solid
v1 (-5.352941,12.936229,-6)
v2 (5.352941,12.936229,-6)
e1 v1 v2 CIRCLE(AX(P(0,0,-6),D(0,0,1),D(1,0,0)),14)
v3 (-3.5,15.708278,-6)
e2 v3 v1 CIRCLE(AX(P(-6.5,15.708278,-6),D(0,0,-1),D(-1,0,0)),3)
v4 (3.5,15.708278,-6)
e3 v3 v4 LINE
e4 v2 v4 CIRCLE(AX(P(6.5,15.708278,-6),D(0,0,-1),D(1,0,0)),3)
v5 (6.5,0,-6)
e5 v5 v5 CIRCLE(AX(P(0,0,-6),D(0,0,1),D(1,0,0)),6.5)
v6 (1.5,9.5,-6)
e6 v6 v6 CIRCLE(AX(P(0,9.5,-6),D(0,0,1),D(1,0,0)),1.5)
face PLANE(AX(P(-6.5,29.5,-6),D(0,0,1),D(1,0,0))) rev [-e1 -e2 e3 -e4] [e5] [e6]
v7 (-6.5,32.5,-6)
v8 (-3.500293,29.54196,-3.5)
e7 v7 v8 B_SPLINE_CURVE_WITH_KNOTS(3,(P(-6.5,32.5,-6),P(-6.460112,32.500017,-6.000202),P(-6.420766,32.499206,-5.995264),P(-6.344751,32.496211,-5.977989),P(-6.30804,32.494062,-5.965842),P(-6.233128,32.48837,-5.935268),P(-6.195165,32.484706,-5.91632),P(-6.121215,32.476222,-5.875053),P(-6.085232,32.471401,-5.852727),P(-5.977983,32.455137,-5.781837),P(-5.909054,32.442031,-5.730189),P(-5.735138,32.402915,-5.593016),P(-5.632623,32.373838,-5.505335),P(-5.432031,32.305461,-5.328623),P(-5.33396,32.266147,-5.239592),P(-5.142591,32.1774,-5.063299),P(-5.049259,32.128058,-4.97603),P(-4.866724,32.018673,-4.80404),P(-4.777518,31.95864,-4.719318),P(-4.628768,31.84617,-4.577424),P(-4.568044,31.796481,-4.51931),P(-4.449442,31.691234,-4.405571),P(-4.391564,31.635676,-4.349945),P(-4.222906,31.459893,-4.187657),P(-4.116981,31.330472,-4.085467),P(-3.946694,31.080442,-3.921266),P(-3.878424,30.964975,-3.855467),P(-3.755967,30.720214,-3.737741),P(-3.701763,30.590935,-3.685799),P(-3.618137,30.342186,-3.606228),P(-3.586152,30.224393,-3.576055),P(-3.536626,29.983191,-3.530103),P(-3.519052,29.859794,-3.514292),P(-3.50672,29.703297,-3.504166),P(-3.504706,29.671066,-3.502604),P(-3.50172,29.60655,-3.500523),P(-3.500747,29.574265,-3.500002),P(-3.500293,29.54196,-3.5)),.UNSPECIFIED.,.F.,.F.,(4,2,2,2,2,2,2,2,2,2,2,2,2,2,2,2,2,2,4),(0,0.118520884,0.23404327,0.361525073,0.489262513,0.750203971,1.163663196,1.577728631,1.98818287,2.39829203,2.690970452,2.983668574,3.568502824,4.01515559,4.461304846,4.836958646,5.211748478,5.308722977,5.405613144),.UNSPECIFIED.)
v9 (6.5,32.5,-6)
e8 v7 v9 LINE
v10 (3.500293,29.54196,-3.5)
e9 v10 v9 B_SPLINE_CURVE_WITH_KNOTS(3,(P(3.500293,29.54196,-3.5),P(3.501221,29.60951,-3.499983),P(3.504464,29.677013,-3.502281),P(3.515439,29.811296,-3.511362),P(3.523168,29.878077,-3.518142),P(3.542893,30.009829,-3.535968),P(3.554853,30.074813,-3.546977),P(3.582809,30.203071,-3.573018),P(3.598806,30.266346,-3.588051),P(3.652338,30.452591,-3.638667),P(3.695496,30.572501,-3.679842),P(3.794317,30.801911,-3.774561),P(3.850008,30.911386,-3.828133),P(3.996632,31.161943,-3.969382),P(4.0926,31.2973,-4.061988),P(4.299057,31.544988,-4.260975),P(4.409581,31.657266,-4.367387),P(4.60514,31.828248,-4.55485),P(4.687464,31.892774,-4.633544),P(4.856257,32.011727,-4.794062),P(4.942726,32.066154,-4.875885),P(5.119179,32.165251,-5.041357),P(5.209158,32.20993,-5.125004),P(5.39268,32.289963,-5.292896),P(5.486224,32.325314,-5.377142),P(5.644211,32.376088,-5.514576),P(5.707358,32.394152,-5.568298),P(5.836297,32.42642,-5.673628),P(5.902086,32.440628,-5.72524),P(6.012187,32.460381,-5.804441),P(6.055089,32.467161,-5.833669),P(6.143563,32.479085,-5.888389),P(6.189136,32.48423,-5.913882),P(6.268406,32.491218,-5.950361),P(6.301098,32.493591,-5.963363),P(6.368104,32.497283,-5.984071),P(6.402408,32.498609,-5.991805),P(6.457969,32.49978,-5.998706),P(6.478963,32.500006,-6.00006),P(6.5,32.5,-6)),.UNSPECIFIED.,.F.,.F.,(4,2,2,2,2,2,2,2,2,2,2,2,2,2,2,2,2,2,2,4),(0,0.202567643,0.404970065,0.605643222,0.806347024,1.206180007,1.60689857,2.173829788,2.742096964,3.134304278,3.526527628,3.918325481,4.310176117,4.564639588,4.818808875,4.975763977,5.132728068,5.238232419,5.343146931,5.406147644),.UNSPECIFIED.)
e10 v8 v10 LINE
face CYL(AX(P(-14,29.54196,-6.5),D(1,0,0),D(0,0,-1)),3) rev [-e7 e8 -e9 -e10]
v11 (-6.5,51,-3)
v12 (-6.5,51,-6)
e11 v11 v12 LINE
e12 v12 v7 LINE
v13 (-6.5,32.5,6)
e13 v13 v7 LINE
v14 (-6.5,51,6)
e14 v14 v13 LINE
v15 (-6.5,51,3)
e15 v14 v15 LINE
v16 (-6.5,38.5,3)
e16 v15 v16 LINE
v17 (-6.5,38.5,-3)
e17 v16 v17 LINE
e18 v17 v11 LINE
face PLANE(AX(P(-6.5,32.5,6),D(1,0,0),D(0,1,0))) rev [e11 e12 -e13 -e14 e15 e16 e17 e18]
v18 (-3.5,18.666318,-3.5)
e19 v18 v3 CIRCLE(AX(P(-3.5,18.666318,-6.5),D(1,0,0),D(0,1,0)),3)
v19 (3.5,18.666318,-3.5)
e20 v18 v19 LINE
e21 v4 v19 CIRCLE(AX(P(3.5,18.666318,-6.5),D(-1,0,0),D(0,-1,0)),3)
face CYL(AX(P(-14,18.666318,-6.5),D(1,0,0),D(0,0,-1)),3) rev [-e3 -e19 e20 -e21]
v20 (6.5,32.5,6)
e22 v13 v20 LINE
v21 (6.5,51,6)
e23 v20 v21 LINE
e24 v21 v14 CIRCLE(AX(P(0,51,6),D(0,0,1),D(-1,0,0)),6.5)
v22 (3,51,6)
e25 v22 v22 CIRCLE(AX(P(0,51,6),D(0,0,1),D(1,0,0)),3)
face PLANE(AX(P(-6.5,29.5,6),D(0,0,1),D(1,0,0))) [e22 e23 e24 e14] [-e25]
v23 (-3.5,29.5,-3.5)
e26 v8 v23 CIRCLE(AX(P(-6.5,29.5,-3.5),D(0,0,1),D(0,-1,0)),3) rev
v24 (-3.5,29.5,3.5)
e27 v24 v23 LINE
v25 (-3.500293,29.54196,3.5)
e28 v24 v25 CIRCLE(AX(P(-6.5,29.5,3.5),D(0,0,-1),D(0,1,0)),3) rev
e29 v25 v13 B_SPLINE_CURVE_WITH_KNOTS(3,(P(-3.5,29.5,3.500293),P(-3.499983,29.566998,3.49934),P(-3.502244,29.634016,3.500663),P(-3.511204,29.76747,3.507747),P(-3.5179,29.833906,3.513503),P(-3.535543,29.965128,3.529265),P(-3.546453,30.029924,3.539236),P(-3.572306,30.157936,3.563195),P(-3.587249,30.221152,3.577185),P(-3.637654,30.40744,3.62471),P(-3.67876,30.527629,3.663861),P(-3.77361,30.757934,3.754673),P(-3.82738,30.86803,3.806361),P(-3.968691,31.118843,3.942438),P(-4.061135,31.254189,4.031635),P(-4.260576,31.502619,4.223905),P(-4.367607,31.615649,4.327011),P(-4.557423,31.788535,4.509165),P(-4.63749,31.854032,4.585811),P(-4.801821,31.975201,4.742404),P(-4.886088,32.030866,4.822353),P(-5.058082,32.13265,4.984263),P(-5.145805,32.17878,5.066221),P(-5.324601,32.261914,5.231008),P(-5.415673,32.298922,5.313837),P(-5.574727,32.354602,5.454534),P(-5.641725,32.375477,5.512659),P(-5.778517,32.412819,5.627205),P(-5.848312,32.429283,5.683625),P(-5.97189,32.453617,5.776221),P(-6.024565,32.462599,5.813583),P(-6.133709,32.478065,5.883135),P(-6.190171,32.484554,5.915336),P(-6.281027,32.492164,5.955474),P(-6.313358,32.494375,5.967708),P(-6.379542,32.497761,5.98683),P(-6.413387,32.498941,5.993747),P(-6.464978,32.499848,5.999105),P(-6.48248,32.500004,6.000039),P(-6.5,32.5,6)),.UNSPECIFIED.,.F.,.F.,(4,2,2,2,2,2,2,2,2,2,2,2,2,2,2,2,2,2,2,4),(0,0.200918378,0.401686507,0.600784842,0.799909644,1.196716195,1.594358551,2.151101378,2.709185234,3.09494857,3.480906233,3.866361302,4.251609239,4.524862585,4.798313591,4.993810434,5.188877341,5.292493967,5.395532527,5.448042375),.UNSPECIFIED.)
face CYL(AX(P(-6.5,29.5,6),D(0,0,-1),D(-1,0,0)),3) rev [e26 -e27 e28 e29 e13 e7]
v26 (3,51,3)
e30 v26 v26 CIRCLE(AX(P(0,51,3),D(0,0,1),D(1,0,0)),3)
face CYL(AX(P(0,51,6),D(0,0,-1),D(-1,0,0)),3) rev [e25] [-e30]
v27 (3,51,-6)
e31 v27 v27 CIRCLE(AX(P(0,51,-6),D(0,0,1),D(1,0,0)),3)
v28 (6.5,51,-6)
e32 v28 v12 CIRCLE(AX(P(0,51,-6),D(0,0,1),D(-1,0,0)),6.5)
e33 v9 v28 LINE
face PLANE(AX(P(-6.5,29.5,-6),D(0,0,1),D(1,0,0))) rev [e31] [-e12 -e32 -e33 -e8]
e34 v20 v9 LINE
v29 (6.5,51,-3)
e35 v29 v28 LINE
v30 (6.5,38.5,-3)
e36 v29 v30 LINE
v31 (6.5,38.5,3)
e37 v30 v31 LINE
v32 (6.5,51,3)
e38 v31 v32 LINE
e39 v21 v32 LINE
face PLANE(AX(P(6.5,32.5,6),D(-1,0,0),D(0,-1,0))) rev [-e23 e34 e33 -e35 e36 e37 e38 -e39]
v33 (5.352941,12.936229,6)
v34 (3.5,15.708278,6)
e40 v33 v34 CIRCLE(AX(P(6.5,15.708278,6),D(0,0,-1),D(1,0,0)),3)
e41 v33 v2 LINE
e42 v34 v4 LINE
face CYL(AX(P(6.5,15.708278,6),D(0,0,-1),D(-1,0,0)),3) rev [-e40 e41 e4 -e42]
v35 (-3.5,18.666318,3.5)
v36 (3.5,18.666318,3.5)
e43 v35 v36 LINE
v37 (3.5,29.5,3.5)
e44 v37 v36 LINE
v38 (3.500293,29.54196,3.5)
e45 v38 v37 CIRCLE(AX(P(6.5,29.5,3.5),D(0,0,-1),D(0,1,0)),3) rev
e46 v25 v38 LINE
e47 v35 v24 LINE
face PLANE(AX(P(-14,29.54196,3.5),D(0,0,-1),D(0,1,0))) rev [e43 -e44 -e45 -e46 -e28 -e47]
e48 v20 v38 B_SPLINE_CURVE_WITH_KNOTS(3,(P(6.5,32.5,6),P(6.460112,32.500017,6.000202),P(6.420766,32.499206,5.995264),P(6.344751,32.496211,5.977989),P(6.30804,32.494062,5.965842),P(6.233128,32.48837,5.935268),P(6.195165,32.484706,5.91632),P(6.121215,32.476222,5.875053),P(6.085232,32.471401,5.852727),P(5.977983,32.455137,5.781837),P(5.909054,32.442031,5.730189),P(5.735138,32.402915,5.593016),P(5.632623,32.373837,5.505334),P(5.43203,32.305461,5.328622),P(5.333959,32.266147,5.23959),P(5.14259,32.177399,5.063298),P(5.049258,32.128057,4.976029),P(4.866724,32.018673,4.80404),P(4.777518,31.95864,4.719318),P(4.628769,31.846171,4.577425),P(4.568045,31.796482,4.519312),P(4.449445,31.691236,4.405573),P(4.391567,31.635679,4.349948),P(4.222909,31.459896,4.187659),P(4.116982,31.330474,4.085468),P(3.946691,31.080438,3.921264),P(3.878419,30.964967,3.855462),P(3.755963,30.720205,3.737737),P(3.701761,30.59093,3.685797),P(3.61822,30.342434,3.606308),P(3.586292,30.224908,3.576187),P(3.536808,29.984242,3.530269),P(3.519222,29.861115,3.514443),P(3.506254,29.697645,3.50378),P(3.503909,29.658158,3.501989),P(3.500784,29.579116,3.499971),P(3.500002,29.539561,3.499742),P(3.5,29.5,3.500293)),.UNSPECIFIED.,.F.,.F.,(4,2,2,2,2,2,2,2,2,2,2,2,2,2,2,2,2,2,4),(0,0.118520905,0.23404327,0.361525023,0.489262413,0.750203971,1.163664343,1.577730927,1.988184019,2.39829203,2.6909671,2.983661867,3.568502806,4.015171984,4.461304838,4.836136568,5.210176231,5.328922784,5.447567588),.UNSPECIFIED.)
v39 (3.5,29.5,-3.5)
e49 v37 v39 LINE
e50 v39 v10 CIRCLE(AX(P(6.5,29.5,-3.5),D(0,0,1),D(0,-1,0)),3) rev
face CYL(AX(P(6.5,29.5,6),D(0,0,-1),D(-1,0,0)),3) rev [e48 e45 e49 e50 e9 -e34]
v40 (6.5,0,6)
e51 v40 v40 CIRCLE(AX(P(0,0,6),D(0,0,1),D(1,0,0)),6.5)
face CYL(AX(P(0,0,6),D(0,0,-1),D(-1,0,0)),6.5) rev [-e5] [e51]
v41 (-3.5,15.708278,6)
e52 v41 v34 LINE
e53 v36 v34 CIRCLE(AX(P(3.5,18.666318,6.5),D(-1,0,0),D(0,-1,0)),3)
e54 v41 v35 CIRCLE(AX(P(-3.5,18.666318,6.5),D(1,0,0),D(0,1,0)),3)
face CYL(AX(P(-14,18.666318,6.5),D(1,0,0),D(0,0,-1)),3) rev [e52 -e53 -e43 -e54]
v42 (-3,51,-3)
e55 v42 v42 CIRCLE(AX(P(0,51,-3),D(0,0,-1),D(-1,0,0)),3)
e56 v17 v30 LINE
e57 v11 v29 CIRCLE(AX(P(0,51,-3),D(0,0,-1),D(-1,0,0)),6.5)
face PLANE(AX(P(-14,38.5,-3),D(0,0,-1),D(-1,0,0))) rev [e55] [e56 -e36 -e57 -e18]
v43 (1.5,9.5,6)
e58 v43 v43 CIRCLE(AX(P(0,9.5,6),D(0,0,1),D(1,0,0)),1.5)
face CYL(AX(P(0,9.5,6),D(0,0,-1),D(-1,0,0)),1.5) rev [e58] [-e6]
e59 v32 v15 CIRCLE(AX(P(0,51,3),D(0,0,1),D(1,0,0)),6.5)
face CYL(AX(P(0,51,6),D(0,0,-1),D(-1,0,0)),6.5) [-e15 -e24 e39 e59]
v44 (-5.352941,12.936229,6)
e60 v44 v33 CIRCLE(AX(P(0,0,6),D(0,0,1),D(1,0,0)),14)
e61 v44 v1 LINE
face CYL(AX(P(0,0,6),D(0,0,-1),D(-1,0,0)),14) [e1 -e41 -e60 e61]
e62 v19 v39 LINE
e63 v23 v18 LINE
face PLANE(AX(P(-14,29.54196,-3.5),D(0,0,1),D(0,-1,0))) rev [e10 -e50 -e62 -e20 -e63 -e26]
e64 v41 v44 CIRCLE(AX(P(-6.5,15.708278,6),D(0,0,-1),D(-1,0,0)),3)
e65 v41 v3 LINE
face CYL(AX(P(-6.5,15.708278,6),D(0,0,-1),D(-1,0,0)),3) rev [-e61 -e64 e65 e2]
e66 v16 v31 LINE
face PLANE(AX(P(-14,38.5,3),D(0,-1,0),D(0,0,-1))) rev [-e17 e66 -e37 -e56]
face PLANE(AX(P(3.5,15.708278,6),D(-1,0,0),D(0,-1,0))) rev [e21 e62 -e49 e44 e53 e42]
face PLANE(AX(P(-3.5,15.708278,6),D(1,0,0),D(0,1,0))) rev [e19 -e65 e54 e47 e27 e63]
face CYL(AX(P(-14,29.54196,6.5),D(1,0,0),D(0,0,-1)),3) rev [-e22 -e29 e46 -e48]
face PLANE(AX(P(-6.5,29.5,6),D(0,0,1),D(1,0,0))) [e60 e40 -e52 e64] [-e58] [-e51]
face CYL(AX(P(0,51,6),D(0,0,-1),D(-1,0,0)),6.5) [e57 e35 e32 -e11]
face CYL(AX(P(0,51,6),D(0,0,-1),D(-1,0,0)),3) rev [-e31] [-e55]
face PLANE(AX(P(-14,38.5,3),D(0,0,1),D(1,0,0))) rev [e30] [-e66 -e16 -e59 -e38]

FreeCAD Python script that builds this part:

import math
import FreeCAD as App
import Part
import Sketcher

V = App.Vector

doc = App.newDocument("Part")
body = doc.addObject("PartDesign::Body", "Body")

sketch1 = body.newObject("Sketcher::SketchObject", "Sketch")
sketch1.AttachmentSupport = (doc.getObject("XY_Plane"), [""])
sketch1.MapMode = "FlatFace"
sketch1.addGeometry([
    Part.LineSegment(V(-3.5, 29.5, 0), V(-3.5, 15.7, 0)),
    Part.ArcOfCircle(Part.Circle(V(-6.5, 15.7, 0), V(0, 0, 1), 3), math.radians(-68), math.radians(0)),
    Part.ArcOfCircle(Part.Circle(V(0, 0, 0), V(0, 0, 1), 14), math.radians(112), math.radians(428)),
    Part.ArcOfCircle(Part.Circle(V(6.5, 15.7, 0), V(0, 0, 1), 3), math.radians(-180), math.radians(-112)),
    Part.LineSegment(V(3.5, 15.7, 0), V(3.5, 29.5, 0)),
    Part.ArcOfCircle(Part.Circle(V(6.5, 29.5, 0), V(0, 0, 1), 3), math.radians(90), math.radians(180)),
    Part.LineSegment(V(6.5, 32.5, 0), V(6.5, 51, 0)),
    Part.ArcOfCircle(Part.Circle(V(0, 51, 0), V(0, 0, 1), 6.5), math.radians(0), math.radians(180)),
    Part.LineSegment(V(-6.5, 51, 0), V(-6.5, 32.5, 0)),
    Part.ArcOfCircle(Part.Circle(V(-6.5, 29.5, 0), V(0, 0, 1), 3), math.radians(0), math.radians(90)),
    Part.Circle(V(0, 0, 0), V(0, 0, 1), 6.5),
    Part.Circle(V(0, 9.5, 0), V(0, 0, 1), 1.5),
    Part.Circle(V(0, 51, 0), V(0, 0, 1), 3),
], False)
sketch1.addConstraint([
    Sketcher.Constraint("Tangent", 0, 2, 1, 2),
    Sketcher.Constraint("Tangent", 1, 1, 2, 1),
    Sketcher.Constraint("Tangent", 2, 2, 3, 2),
    Sketcher.Constraint("Tangent", 3, 1, 4, 1),
    Sketcher.Constraint("Tangent", 4, 2, 5, 2),
    Sketcher.Constraint("Coincident", 5, 1, 6, 1),
    Sketcher.Constraint("Tangent", 6, 2, 7, 1),
    Sketcher.Constraint("Tangent", 7, 2, 8, 1),
    Sketcher.Constraint("Coincident", 8, 2, 9, 2),
    Sketcher.Constraint("Tangent", 9, 1, 0, 1),
    Sketcher.Constraint("Vertical", 0),
    Sketcher.Constraint("Vertical", 4),
    Sketcher.Constraint("Vertical", 6),
    Sketcher.Constraint("Vertical", 8),
    Sketcher.Constraint("Coincident", 2, 3, -1, 1),
    Sketcher.Constraint("Coincident", 10, 3, -1, 1),
    Sketcher.Constraint("Coincident", 12, 3, 7, 3),
    Sketcher.Constraint("Equal", 1, 3),
    Sketcher.Constraint("Equal", 3, 5),
    Sketcher.Constraint("Equal", 5, 9),
    Sketcher.Constraint("Equal", 7, 10),
    Sketcher.Constraint("Equal", 9, 12),
    Sketcher.Constraint("Symmetric", 5, 3, 9, 3, -2),
    Sketcher.Constraint("PointOnObject", 7, 3, -2),
    Sketcher.Constraint("PointOnObject", 11, 3, -2),
    Sketcher.Constraint("Vertical", 3, 3, 5, 1),
    Sketcher.Constraint("Diameter", 10, 13.0),
    Sketcher.Constraint("Diameter", 11, 3.0),
    Sketcher.Constraint("Diameter", 12, 6.0),
    Sketcher.Constraint("Radius", 2, 14.0),
    Sketcher.Constraint("DistanceY", 6, 1, 6, 2, 18.5),
    Sketcher.Constraint("DistanceY", -1, 1, 7, 3, 51.0),
    Sketcher.Constraint("DistanceY", 11, 3, 5, 3, 20.0),
])
pad1 = body.newObject("PartDesign::Pad", "Pad")
pad1.Profile = sketch1
pad1.Length = 12
pad1.Midplane = True

sketch2 = body.newObject("Sketcher::SketchObject", "Sketch001")
sketch2.AttachmentSupport = (doc.getObject("YZ_Plane"), [""])
sketch2.MapMode = "FlatFace"
sketch2.addGeometry([
    Part.LineSegment(V(32.5, 6, 0), V(15.7, 6, 0)),
    Part.ArcOfCircle(Part.Circle(V(18.7, 6.5, 0), V(0, 0, 1), 3), math.radians(-170), math.radians(-90)),
    Part.LineSegment(V(18.7, 3.5, 0), V(29.5, 3.5, 0)),
    Part.ArcOfCircle(Part.Circle(V(29.5, 6.5, 0), V(0, 0, 1), 3), math.radians(-90), math.radians(-10)),
    Part.LineSegment(V(15.7, -6, 0), V(32.5, -6, 0)),
    Part.ArcOfCircle(Part.Circle(V(29.5, -6.5, 0), V(0, 0, 1), 3), math.radians(10), math.radians(90)),
    Part.LineSegment(V(29.5, -3.5, 0), V(18.7, -3.5, 0)),
    Part.ArcOfCircle(Part.Circle(V(18.7, -6.5, 0), V(0, 0, 1), 3), math.radians(90), math.radians(170)),
    Part.LineSegment(V(57.5, 3, 0), V(38.5, 3, 0)),
    Part.LineSegment(V(38.5, 3, 0), V(38.5, -3, 0)),
    Part.LineSegment(V(38.5, -3, 0), V(57.5, -3, 0)),
    Part.LineSegment(V(57.5, -3, 0), V(57.5, 3, 0)),
], False)
sketch2.addConstraint([
    Sketcher.Constraint("Coincident", 0, 2, 1, 1),
    Sketcher.Constraint("Tangent", 1, 2, 2, 1),
    Sketcher.Constraint("Tangent", 2, 2, 3, 1),
    Sketcher.Constraint("Coincident", 3, 2, 0, 1),
    Sketcher.Constraint("Coincident", 4, 2, 5, 1),
    Sketcher.Constraint("Tangent", 5, 2, 6, 1),
    Sketcher.Constraint("Tangent", 6, 2, 7, 1),
    Sketcher.Constraint("Coincident", 7, 2, 4, 1),
    Sketcher.Constraint("Coincident", 8, 2, 9, 1),
    Sketcher.Constraint("Coincident", 9, 2, 10, 1),
    Sketcher.Constraint("Coincident", 10, 2, 11, 1),
    Sketcher.Constraint("Coincident", 11, 2, 8, 1),
    Sketcher.Constraint("Horizontal", 0),
    Sketcher.Constraint("Horizontal", 2),
    Sketcher.Constraint("Horizontal", 4),
    Sketcher.Constraint("Horizontal", 6),
    Sketcher.Constraint("Horizontal", 8),
    Sketcher.Constraint("Vertical", 9),
    Sketcher.Constraint("Horizontal", 10),
    Sketcher.Constraint("Vertical", 11),
    Sketcher.Constraint("Equal", 1, 3),
    Sketcher.Constraint("Equal", 3, 5),
    Sketcher.Constraint("Equal", 5, 7),
    Sketcher.Constraint("Symmetric", 3, 3, 5, 3, -1),
    Sketcher.Constraint("Symmetric", 0, 2, 7, 2, -1),
    Sketcher.Constraint("Radius", 1, 3.0),
    Sketcher.Constraint("DistanceX", 8, 2, 8, 1, 19.0),
    Sketcher.Constraint("DistanceY", 9, 2, 9, 1, 6.0),
    Sketcher.Constraint("DistanceY", -1, 1, 0, 2, 6.0),
    Sketcher.Constraint("DistanceY", -1, 1, 8, 2, 3.0),
    Sketcher.Constraint("DistanceY", 5, 3, 3, 3, 13.0),
    Sketcher.Constraint("DistanceX", 3, 2, 8, 2, 6.0),
    Sketcher.Constraint("DistanceX", -1, 1, 3, 2, 32.5),
    Sketcher.Constraint("DistanceX", 0, 2, 0, 1, 16.791722),
])
pocket1 = body.newObject("PartDesign::Pocket", "Pocket")
pocket1.Profile = sketch2
pocket1.Type = "ThroughAll"
pocket1.Midplane = True

doc.recompute()
